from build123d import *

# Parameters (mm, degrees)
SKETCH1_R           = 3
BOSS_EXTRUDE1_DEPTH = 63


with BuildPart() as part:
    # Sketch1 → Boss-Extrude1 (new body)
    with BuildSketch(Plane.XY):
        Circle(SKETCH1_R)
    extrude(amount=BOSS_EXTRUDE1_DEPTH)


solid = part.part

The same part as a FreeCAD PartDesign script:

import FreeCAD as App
import Part
import Sketcher
from FreeCAD import Vector

doc = App.newDocument("Part")
body = doc.addObject("PartDesign::Body", "Body")

sketch1 = body.newObject("Sketcher::SketchObject", "Sketch")
sketch1.AttachmentSupport = (doc.getObject("XY_Plane"), [""])
sketch1.MapMode = "FlatFace"
sketch1.addGeometry(Part.Circle(Vector(0, 0, 0), Vector(0, 0, 1), 3), False)
sketch1.addConstraint([
    Sketcher.Constraint("Coincident", 0, 3, -1, 1),
    Sketcher.Constraint("Diameter", 0, 6.0),
])
pad1 = body.newObject("PartDesign::Pad", "Pad")
pad1.Profile = sketch1
pad1.Length = 63

doc.recompute()
